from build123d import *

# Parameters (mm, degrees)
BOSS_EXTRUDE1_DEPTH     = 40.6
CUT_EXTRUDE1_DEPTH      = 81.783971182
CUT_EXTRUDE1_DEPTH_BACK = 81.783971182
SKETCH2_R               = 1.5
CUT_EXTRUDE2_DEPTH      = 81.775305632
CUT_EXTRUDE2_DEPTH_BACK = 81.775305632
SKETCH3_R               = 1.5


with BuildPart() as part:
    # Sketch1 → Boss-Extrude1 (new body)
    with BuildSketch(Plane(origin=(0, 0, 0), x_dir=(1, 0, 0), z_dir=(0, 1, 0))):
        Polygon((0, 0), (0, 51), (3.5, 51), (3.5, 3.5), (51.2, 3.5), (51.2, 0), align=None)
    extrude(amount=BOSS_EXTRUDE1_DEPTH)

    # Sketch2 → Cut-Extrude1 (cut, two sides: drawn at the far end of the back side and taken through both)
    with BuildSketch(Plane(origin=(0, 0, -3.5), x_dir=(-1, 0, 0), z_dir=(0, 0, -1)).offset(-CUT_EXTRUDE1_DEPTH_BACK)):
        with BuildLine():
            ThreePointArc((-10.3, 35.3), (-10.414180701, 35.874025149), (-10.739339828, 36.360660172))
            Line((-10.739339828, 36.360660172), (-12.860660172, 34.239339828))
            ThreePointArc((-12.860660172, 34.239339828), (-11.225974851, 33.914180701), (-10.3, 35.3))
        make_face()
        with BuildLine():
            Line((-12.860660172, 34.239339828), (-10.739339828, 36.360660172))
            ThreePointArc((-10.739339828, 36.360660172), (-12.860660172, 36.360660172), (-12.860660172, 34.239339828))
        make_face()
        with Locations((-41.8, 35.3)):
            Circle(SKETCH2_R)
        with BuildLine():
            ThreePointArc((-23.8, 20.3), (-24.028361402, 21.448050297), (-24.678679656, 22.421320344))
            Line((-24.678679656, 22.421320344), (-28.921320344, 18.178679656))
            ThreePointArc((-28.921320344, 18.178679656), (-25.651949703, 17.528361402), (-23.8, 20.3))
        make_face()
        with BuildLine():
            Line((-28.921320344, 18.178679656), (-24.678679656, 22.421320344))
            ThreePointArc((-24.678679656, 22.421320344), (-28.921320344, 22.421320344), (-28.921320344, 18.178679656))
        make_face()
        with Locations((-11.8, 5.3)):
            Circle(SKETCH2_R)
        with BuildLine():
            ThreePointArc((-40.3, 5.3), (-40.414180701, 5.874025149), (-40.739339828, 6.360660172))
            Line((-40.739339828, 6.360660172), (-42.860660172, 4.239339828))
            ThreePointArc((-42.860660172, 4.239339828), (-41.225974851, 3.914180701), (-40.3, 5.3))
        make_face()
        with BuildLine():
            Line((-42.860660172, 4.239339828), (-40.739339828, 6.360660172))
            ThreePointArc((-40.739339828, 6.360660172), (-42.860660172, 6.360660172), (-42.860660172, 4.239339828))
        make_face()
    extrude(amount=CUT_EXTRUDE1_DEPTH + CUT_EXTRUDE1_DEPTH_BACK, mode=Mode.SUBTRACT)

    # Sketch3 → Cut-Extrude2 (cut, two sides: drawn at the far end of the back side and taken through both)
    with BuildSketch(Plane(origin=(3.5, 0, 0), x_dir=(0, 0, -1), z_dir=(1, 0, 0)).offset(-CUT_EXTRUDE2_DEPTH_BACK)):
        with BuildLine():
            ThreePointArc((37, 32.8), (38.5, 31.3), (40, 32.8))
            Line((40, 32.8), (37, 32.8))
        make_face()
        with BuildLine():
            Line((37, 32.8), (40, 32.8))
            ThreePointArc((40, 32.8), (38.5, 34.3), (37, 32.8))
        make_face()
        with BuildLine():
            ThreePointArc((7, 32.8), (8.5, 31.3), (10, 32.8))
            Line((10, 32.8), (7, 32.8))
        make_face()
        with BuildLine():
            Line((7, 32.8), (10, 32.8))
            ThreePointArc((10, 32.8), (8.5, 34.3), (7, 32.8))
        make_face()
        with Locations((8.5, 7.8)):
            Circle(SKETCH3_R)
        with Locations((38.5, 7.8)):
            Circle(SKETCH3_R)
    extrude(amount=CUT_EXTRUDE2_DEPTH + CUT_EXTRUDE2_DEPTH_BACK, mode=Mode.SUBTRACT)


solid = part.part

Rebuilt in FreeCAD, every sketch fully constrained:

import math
import FreeCAD as App
import Part
import Sketcher

V = App.Vector
Q = App.Units.Quantity

doc = App.newDocument("Part")
params = doc.addObject("Spreadsheet::Sheet", "Params")
for row, (alias, value) in enumerate([
    ("sketch1_height", "51 mm"),
    ("sketch1_width", "51.2 mm"),
    ("sketch1_width2", "47.7 mm"),
    ("pad1_length", "40.6 mm"),
    ("sketch2_diameter", "3 mm"),
    ("sketch2_radius", "3 mm"),
    ("sketch3_diameter", "3 mm"),
], start=1):
    params.set(f"A{row}", alias)
    params.set(f"B{row}", "=" + value)
    params.setAlias(f"B{row}", alias)

body = doc.addObject("PartDesign::Body", "Body")

# Sketch on XZ plane
sketch1 = body.newObject("Sketcher::SketchObject", "Sketch")
sketch1.AttachmentSupport = (doc.getObject("XZ_Plane"), [""])
sketch1.MapMode = "FlatFace"
sketch1.addGeometry([
    Part.LineSegment(V(0, -51, 0), V(0, 0, 0)),  # 0
    Part.LineSegment(V(0, 0, 0), V(51.2, 0, 0)),  # 1
    Part.LineSegment(V(51.2, 0, 0), V(51.2, -3.5, 0)),  # 2
    Part.LineSegment(V(51.2, -3.5, 0), V(3.5, -3.5, 0)),  # 3
    Part.LineSegment(V(3.5, -3.5, 0), V(3.5, -51, 0)),  # 4
    Part.LineSegment(V(3.5, -51, 0), V(0, -51, 0)),  # 5
], False)
sketch1.addConstraint([
    Sketcher.Constraint("Coincident", 0, 2, 1, 1),
    Sketcher.Constraint("Coincident", 1, 2, 2, 1),
    Sketcher.Constraint("Coincident", 2, 2, 3, 1),
    Sketcher.Constraint("Coincident", 3, 2, 4, 1),
    Sketcher.Constraint("Coincident", 4, 2, 5, 1),
    Sketcher.Constraint("Coincident", 5, 2, 0, 1),
    Sketcher.Constraint("Vertical", 0),
    Sketcher.Constraint("Horizontal", 1),
    Sketcher.Constraint("Vertical", 2),
    Sketcher.Constraint("Horizontal", 3),
    Sketcher.Constraint("Vertical", 4),
    Sketcher.Constraint("Horizontal", 5),
    Sketcher.Constraint("Coincident", 0, 2, -1, 1),
    Sketcher.Constraint("Equal", 5, 2),
    Sketcher.Constraint("DistanceY", 0, 1, 0, 2, Q("51 mm")),
    Sketcher.Constraint("DistanceX", 1, 1, 1, 2, Q("51.2 mm")),
    Sketcher.Constraint("DistanceX", 3, 2, 3, 1, Q("47.7 mm")),
])
sketch1.setExpression("Constraints[14]", "Params.sketch1_height")
sketch1.setExpression("Constraints[15]", "Params.sketch1_width")
sketch1.setExpression("Constraints[16]", "Params.sketch1_width2")
pad1 = body.newObject("PartDesign::Pad", "Pad")
pad1.Profile = sketch1
pad1.setExpression("Length", "Params.pad1_length")
pad1.Reversed = True

# Sketch on XY plane
sketch2 = body.newObject("Sketcher::SketchObject", "Sketch001")
sketch2.AttachmentSupport = (doc.getObject("XY_Plane"), [""])
sketch2.MapMode = "FlatFace"
sketch2.AttachmentOffset = App.Placement(V(0, 0, -3.5), App.Rotation())
sketch2.addGeometry([
    Part.ArcOfCircle(Part.Circle(V(11.8, 35.3, 0), V(0, 0, 1), 1.5), math.radians(135), math.radians(180)),  # 0
    Part.ArcOfCircle(Part.Circle(V(11.8, 35.3, 0), V(0, 0, 1), 1.5), math.radians(-45), math.radians(135)),  # 1
    Part.ArcOfCircle(Part.Circle(V(11.8, 35.3, 0), V(0, 0, 1), 1.5), math.radians(180), math.radians(315)),  # 2
    Part.Circle(V(41.8, 35.3, 0), V(0, 0, 1), 1.5),  # 3
    Part.ArcOfCircle(Part.Circle(V(26.8, 20.3, 0), V(0, 0, 1), 3), math.radians(135), math.radians(180)),  # 4
    Part.ArcOfCircle(Part.Circle(V(26.8, 20.3, 0), V(0, 0, 1), 3), math.radians(-45), math.radians(135)),  # 5
    Part.ArcOfCircle(Part.Circle(V(26.8, 20.3, 0), V(0, 0, 1), 3), math.radians(180), math.radians(315)),  # 6
    Part.Circle(V(11.8, 5.3, 0), V(0, 0, 1), 1.5),  # 7
    Part.ArcOfCircle(Part.Circle(V(41.8, 5.3, 0), V(0, 0, 1), 1.5), math.radians(135), math.radians(180)),  # 8
    Part.ArcOfCircle(Part.Circle(V(41.8, 5.3, 0), V(0, 0, 1), 1.5), math.radians(-45), math.radians(135)),  # 9
    Part.ArcOfCircle(Part.Circle(V(41.8, 5.3, 0), V(0, 0, 1), 1.5), math.radians(180), math.radians(315)),  # 10
], False)
sketch2.addConstraint([
    Sketcher.Constraint("Tangent", 0, 1, 1, 2),
    Sketcher.Constraint("Tangent", 1, 1, 2, 2),
    Sketcher.Constraint("Tangent", 2, 1, 0, 2),
    Sketcher.Constraint("Tangent", 4, 1, 5, 2),
    Sketcher.Constraint("Tangent", 5, 1, 6, 2),
    Sketcher.Constraint("Tangent", 6, 1, 4, 2),
    Sketcher.Constraint("Tangent", 8, 1, 9, 2),
    Sketcher.Constraint("Tangent", 9, 1, 10, 2),
    Sketcher.Constraint("Tangent", 10, 1, 8, 2),
    Sketcher.Constraint("Equal", 2, 3),
    Sketcher.Constraint("Equal", 3, 7),
    Sketcher.Constraint("Equal", 7, 8),
    Sketcher.Constraint("Horizontal", 2, 3, 3, 3),
    Sketcher.Constraint("Horizontal", 7, 3, 8, 3),
    Sketcher.Constraint("Horizontal", 3, 3, 2, 1),
    Sketcher.Constraint("Horizontal", 5, 3, 6, 1),
    Sketcher.Constraint("Horizontal", 9, 3, 10, 1),
    Sketcher.Constraint("Vertical", 2, 3, 7, 3),
    Sketcher.Constraint("Vertical", 3, 3, 8, 3),
    Sketcher.Constraint("Diameter", 3, Q("3 mm")),
    Sketcher.Constraint("Radius", 4, Q("3 mm")),
    Sketcher.Constraint("DistanceX", 1, 3, 3, 3, Q("30 mm")),
    Sketcher.Constraint("DistanceX", 1, 3, 4, 3, Q("15 mm")),
    Sketcher.Constraint("DistanceY", 4, 3, 1, 3, Q("15 mm")),
    Sketcher.Constraint("DistanceY", 7, 3, 4, 3, Q("15 mm")),
    Sketcher.Constraint("DistanceX", -1, 1, 0, 3, Q("11.8 mm")),
    Sketcher.Constraint("DistanceY", -1, 1, 0, 3, Q("35.3 mm")),
    Sketcher.Constraint("DistanceX", -1, 1, 0, 1, Q("10.73934 mm")),
    Sketcher.Constraint("DistanceX", -1, 1, 1, 1, Q("12.86066 mm")),
    Sketcher.Constraint("DistanceX", -1, 1, 4, 1, Q("24.67868 mm")),
    Sketcher.Constraint("DistanceX", -1, 1, 5, 1, Q("28.92132 mm")),
    Sketcher.Constraint("DistanceX", -1, 1, 8, 1, Q("40.73934 mm")),
    Sketcher.Constraint("DistanceX", -1, 1, 9, 1, Q("42.86066 mm")),
])
sketch2.setExpression("Constraints[19]", "Params.sketch2_diameter")
sketch2.setExpression("Constraints[20]", "Params.sketch2_radius")
pocket1 = body.newObject("PartDesign::Pocket", "Pocket")
pocket1.Profile = sketch2
pocket1.Type = "ThroughAll"
pocket1.Midplane = True

# Sketch on YZ plane
sketch3 = body.newObject("Sketcher::SketchObject", "Sketch002")
sketch3.AttachmentSupport = (doc.getObject("YZ_Plane"), [""])
sketch3.MapMode = "FlatFace"
sketch3.AttachmentOffset = App.Placement(V(0, 0, 3.5), App.Rotation())
sketch3.addGeometry([
    Part.Circle(V(32.8, -38.5, 0), V(0, 0, 1), 1.5),
    Part.Circle(V(32.8, -8.5, 0), V(0, 0, 1), 1.5),
    Part.Circle(V(7.8, -8.5, 0), V(0, 0, 1), 1.5),
    Part.Circle(V(7.8, -38.5, 0), V(0, 0, 1), 1.5),
], False)
sketch3.addConstraint([
    Sketcher.Constraint("Equal", 0, 1),
    Sketcher.Constraint("Equal", 1, 2),
    Sketcher.Constraint("Equal", 2, 3),
    Sketcher.Constraint("Horizontal", 1, 3, 2, 3),
    Sketcher.Constraint("Horizontal", 0, 3, 3, 3),
    Sketcher.Constraint("Vertical", 0, 3, 1, 3),
    Sketcher.Constraint("Vertical", 2, 3, 3, 3),
    Sketcher.Constraint("Diameter", 0, Q("3 mm")),
    Sketcher.Constraint("DistanceY", 0, 3, 1, 3, Q("30 mm")),
    Sketcher.Constraint("DistanceX", 2, 3, 1, 3, Q("25 mm")),
    Sketcher.Constraint("DistanceX", -1, 1, 0, 3, Q("32.8 mm")),
    Sketcher.Constraint("DistanceY", 0, 3, -1, 1, Q("38.5 mm")),
])
sketch3.setExpression("Constraints[7]", "Params.sketch3_diameter")
pocket2 = body.newObject("PartDesign::Pocket", "Pocket001")
pocket2.Profile = sketch3
pocket2.Type = "ThroughAll"
pocket2.Midplane = True

doc.recompute()
